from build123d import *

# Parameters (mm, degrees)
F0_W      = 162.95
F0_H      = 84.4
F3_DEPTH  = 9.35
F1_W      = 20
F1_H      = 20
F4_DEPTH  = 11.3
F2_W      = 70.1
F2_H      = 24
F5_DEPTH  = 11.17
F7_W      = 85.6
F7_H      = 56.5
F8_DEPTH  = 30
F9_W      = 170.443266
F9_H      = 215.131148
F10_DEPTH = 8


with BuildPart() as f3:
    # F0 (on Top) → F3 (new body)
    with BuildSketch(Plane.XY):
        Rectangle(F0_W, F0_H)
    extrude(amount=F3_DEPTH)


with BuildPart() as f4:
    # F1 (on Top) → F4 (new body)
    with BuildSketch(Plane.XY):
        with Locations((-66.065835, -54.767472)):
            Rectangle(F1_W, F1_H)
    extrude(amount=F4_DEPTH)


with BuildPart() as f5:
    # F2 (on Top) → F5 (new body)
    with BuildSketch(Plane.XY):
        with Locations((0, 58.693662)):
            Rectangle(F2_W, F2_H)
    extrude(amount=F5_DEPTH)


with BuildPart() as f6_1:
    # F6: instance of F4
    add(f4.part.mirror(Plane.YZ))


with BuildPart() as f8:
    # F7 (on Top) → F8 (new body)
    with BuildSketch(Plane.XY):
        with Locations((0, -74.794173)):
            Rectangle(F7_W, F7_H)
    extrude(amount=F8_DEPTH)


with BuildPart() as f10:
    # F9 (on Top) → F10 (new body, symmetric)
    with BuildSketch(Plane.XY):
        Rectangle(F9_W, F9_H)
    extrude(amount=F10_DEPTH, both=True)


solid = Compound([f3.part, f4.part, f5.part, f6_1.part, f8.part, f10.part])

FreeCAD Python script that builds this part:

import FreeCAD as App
import Part
import Sketcher

V = App.Vector

doc = App.newDocument("Part")
body = doc.addObject("PartDesign::Body", "Body")

# Sketch on XY plane
sketch1 = body.newObject("Sketcher::SketchObject", "Sketch")
sketch1.AttachmentSupport = (doc.getObject("XY_Plane"), [""])
sketch1.MapMode = "FlatFace"
sketch1.addGeometry([
    Part.LineSegment(V(-81.475, 42.2, 0), V(-81.475, -42.2, 0)),
    Part.LineSegment(V(-81.475, -42.2, 0), V(81.475, -42.2, 0)),
    Part.LineSegment(V(81.475, -42.2, 0), V(81.475, 42.2, 0)),
    Part.LineSegment(V(81.475, 42.2, 0), V(-81.475, 42.2, 0)),
], False)
sketch1.addConstraint([
    Sketcher.Constraint("Coincident", 0, 2, 1, 1),
    Sketcher.Constraint("Coincident", 1, 2, 2, 1),
    Sketcher.Constraint("Coincident", 2, 2, 3, 1),
    Sketcher.Constraint("Coincident", 3, 2, 0, 1),
    Sketcher.Constraint("Vertical", 0),
    Sketcher.Constraint("Horizontal", 1),
    Sketcher.Constraint("Vertical", 2),
    Sketcher.Constraint("Horizontal", 3),
    Sketcher.Constraint("Symmetric", 0, 2, 2, 2, -1, 1),
    Sketcher.Constraint("DistanceY", 0, 2, 0, 1, 84.4),
    Sketcher.Constraint("DistanceX", 1, 1, 1, 2, 162.95),
])
pad1 = body.newObject("PartDesign::Pad", "Pad")
pad1.Profile = sketch1
pad1.Length = 9.35
body2 = doc.addObject("PartDesign::Body", "Body001")

# Sketch on XY plane
sketch2 = body2.newObject("Sketcher::SketchObject", "Sketch001")
sketch2.AttachmentSupport = (doc.getObject("XY_Plane001"), [""])
sketch2.MapMode = "FlatFace"
sketch2.addGeometry([
    Part.LineSegment(V(-76.065835, -44.767472, 0), V(-76.065835, -64.767472, 0)),
    Part.LineSegment(V(-76.065835, -64.767472, 0), V(-56.065835, -64.767472, 0)),
    Part.LineSegment(V(-56.065835, -64.767472, 0), V(-56.065835, -44.767472, 0)),
    Part.LineSegment(V(-56.065835, -44.767472, 0), V(-76.065835, -44.767472, 0)),
], False)
sketch2.addConstraint([
    Sketcher.Constraint("Coincident", 0, 2, 1, 1),
    Sketcher.Constraint("Coincident", 1, 2, 2, 1),
    Sketcher.Constraint("Coincident", 2, 2, 3, 1),
    Sketcher.Constraint("Coincident", 3, 2, 0, 1),
    Sketcher.Constraint("Vertical", 0),
    Sketcher.Constraint("Horizontal", 1),
    Sketcher.Constraint("Vertical", 2),
    Sketcher.Constraint("Horizontal", 3),
    Sketcher.Constraint("Equal", 3, 0),
    Sketcher.Constraint("DistanceX", 1, 1, 1, 2, 20.0),
    Sketcher.Constraint("DistanceY", 0, 2, -1, 1, 64.767472),
    Sketcher.Constraint("DistanceX", 0, 2, -1, 1, 76.065835),
])
pad2 = body2.newObject("PartDesign::Pad", "Pad001")
pad2.Profile = sketch2
pad2.Length = 11.3
body3 = doc.addObject("PartDesign::Body", "Body002")

# Sketch on XY plane
sketch3 = body3.newObject("Sketcher::SketchObject", "Sketch002")
sketch3.AttachmentSupport = (doc.getObject("XY_Plane002"), [""])
sketch3.MapMode = "FlatFace"
sketch3.addGeometry([
    Part.LineSegment(V(-35.05, 70.693662, 0), V(-35.05, 46.693662, 0)),
    Part.LineSegment(V(-35.05, 46.693662, 0), V(35.05, 46.693662, 0)),
    Part.LineSegment(V(35.05, 46.693662, 0), V(35.05, 70.693662, 0)),
    Part.LineSegment(V(35.05, 70.693662, 0), V(-35.05, 70.693662, 0)),
], False)
sketch3.addConstraint([
    Sketcher.Constraint("Coincident", 0, 2, 1, 1),
    Sketcher.Constraint("Coincident", 1, 2, 2, 1),
    Sketcher.Constraint("Coincident", 2, 2, 3, 1),
    Sketcher.Constraint("Coincident", 3, 2, 0, 1),
    Sketcher.Constraint("Vertical", 0),
    Sketcher.Constraint("Horizontal", 1),
    Sketcher.Constraint("Vertical", 2),
    Sketcher.Constraint("Horizontal", 3),
    Sketcher.Constraint("DistanceY", 0, 2, 0, 1, 24.0),
    Sketcher.Constraint("DistanceX", 1, 1, 1, 2, 70.1),
    Sketcher.Constraint("DistanceX", 0, 2, -1, 1, 35.05),
    Sketcher.Constraint("DistanceY", -1, 1, 0, 2, 46.693662),
])
pad3 = body3.newObject("PartDesign::Pad", "Pad002")
pad3.Profile = sketch3
pad3.Length = 11.17
body4 = doc.addObject("PartDesign::Body", "Body003")
doc.recompute()

mirroring = doc.addObject("Part::Mirroring", "Mirroring")
mirroring.Source = body2
mirroring.Base = V(0, 0, 0)
mirroring.Normal = V(1, 0, 0)
body4.BaseFeature = mirroring
doc.recompute()
body5 = doc.addObject("PartDesign::Body", "Body004")

# Sketch on XY plane
sketch4 = body5.newObject("Sketcher::SketchObject", "Sketch003")
sketch4.AttachmentSupport = (doc.getObject("XY_Plane004"), [""])
sketch4.MapMode = "FlatFace"
sketch4.addGeometry([
    Part.LineSegment(V(-42.8, -46.544173, 0), V(-42.8, -103.044173, 0)),
    Part.LineSegment(V(-42.8, -103.044173, 0), V(42.8, -103.044173, 0)),
    Part.LineSegment(V(42.8, -103.044173, 0), V(42.8, -46.544173, 0)),
    Part.LineSegment(V(42.8, -46.544173, 0), V(-42.8, -46.544173, 0)),
], False)
sketch4.addConstraint([
    Sketcher.Constraint("Coincident", 0, 2, 1, 1),
    Sketcher.Constraint("Coincident", 1, 2, 2, 1),
    Sketcher.Constraint("Coincident", 2, 2, 3, 1),
    Sketcher.Constraint("Coincident", 3, 2, 0, 1),
    Sketcher.Constraint("Vertical", 0),
    Sketcher.Constraint("Horizontal", 1),
    Sketcher.Constraint("Vertical", 2),
    Sketcher.Constraint("Horizontal", 3),
    Sketcher.Constraint("DistanceX", 1, 1, 1, 2, 85.6),
    Sketcher.Constraint("DistanceY", 0, 2, 0, 1, 56.5),
    Sketcher.Constraint("DistanceX", 0, 2, -1, 1, 42.8),
    Sketcher.Constraint("DistanceY", 0, 2, -1, 1, 103.044173),
])
pad4 = body5.newObject("PartDesign::Pad", "Pad003")
pad4.Profile = sketch4
pad4.Length = 30
body6 = doc.addObject("PartDesign::Body", "Body005")

# Sketch on XY plane
sketch5 = body6.newObject("Sketcher::SketchObject", "Sketch004")
sketch5.AttachmentSupport = (doc.getObject("XY_Plane005"), [""])
sketch5.MapMode = "FlatFace"
sketch5.addGeometry([
    Part.LineSegment(V(-85.221633, 107.565574, 0), V(-85.221633, -107.565574, 0)),
    Part.LineSegment(V(-85.221633, -107.565574, 0), V(85.221633, -107.565574, 0)),
    Part.LineSegment(V(85.221633, -107.565574, 0), V(85.221633, 107.565574, 0)),
    Part.LineSegment(V(85.221633, 107.565574, 0), V(-85.221633, 107.565574, 0)),
], False)
sketch5.addConstraint([
    Sketcher.Constraint("Coincident", 0, 2, 1, 1),
    Sketcher.Constraint("Coincident", 1, 2, 2, 1),
    Sketcher.Constraint("Coincident", 2, 2, 3, 1),
    Sketcher.Constraint("Coincident", 3, 2, 0, 1),
    Sketcher.Constraint("Vertical", 0),
    Sketcher.Constraint("Horizontal", 1),
    Sketcher.Constraint("Vertical", 2),
    Sketcher.Constraint("Horizontal", 3),
    Sketcher.Constraint("Symmetric", 0, 2, 2, 2, -1, 1),
    Sketcher.Constraint("DistanceY", 0, 2, 0, 1, 215.131148),
    Sketcher.Constraint("DistanceX", 1, 1, 1, 2, 170.443266),
])
pad5 = body6.newObject("PartDesign::Pad", "Pad004")
pad5.Profile = sketch5
pad5.Length = 16
pad5.Midplane = True
mirroring.Visibility = False

doc.recompute()
